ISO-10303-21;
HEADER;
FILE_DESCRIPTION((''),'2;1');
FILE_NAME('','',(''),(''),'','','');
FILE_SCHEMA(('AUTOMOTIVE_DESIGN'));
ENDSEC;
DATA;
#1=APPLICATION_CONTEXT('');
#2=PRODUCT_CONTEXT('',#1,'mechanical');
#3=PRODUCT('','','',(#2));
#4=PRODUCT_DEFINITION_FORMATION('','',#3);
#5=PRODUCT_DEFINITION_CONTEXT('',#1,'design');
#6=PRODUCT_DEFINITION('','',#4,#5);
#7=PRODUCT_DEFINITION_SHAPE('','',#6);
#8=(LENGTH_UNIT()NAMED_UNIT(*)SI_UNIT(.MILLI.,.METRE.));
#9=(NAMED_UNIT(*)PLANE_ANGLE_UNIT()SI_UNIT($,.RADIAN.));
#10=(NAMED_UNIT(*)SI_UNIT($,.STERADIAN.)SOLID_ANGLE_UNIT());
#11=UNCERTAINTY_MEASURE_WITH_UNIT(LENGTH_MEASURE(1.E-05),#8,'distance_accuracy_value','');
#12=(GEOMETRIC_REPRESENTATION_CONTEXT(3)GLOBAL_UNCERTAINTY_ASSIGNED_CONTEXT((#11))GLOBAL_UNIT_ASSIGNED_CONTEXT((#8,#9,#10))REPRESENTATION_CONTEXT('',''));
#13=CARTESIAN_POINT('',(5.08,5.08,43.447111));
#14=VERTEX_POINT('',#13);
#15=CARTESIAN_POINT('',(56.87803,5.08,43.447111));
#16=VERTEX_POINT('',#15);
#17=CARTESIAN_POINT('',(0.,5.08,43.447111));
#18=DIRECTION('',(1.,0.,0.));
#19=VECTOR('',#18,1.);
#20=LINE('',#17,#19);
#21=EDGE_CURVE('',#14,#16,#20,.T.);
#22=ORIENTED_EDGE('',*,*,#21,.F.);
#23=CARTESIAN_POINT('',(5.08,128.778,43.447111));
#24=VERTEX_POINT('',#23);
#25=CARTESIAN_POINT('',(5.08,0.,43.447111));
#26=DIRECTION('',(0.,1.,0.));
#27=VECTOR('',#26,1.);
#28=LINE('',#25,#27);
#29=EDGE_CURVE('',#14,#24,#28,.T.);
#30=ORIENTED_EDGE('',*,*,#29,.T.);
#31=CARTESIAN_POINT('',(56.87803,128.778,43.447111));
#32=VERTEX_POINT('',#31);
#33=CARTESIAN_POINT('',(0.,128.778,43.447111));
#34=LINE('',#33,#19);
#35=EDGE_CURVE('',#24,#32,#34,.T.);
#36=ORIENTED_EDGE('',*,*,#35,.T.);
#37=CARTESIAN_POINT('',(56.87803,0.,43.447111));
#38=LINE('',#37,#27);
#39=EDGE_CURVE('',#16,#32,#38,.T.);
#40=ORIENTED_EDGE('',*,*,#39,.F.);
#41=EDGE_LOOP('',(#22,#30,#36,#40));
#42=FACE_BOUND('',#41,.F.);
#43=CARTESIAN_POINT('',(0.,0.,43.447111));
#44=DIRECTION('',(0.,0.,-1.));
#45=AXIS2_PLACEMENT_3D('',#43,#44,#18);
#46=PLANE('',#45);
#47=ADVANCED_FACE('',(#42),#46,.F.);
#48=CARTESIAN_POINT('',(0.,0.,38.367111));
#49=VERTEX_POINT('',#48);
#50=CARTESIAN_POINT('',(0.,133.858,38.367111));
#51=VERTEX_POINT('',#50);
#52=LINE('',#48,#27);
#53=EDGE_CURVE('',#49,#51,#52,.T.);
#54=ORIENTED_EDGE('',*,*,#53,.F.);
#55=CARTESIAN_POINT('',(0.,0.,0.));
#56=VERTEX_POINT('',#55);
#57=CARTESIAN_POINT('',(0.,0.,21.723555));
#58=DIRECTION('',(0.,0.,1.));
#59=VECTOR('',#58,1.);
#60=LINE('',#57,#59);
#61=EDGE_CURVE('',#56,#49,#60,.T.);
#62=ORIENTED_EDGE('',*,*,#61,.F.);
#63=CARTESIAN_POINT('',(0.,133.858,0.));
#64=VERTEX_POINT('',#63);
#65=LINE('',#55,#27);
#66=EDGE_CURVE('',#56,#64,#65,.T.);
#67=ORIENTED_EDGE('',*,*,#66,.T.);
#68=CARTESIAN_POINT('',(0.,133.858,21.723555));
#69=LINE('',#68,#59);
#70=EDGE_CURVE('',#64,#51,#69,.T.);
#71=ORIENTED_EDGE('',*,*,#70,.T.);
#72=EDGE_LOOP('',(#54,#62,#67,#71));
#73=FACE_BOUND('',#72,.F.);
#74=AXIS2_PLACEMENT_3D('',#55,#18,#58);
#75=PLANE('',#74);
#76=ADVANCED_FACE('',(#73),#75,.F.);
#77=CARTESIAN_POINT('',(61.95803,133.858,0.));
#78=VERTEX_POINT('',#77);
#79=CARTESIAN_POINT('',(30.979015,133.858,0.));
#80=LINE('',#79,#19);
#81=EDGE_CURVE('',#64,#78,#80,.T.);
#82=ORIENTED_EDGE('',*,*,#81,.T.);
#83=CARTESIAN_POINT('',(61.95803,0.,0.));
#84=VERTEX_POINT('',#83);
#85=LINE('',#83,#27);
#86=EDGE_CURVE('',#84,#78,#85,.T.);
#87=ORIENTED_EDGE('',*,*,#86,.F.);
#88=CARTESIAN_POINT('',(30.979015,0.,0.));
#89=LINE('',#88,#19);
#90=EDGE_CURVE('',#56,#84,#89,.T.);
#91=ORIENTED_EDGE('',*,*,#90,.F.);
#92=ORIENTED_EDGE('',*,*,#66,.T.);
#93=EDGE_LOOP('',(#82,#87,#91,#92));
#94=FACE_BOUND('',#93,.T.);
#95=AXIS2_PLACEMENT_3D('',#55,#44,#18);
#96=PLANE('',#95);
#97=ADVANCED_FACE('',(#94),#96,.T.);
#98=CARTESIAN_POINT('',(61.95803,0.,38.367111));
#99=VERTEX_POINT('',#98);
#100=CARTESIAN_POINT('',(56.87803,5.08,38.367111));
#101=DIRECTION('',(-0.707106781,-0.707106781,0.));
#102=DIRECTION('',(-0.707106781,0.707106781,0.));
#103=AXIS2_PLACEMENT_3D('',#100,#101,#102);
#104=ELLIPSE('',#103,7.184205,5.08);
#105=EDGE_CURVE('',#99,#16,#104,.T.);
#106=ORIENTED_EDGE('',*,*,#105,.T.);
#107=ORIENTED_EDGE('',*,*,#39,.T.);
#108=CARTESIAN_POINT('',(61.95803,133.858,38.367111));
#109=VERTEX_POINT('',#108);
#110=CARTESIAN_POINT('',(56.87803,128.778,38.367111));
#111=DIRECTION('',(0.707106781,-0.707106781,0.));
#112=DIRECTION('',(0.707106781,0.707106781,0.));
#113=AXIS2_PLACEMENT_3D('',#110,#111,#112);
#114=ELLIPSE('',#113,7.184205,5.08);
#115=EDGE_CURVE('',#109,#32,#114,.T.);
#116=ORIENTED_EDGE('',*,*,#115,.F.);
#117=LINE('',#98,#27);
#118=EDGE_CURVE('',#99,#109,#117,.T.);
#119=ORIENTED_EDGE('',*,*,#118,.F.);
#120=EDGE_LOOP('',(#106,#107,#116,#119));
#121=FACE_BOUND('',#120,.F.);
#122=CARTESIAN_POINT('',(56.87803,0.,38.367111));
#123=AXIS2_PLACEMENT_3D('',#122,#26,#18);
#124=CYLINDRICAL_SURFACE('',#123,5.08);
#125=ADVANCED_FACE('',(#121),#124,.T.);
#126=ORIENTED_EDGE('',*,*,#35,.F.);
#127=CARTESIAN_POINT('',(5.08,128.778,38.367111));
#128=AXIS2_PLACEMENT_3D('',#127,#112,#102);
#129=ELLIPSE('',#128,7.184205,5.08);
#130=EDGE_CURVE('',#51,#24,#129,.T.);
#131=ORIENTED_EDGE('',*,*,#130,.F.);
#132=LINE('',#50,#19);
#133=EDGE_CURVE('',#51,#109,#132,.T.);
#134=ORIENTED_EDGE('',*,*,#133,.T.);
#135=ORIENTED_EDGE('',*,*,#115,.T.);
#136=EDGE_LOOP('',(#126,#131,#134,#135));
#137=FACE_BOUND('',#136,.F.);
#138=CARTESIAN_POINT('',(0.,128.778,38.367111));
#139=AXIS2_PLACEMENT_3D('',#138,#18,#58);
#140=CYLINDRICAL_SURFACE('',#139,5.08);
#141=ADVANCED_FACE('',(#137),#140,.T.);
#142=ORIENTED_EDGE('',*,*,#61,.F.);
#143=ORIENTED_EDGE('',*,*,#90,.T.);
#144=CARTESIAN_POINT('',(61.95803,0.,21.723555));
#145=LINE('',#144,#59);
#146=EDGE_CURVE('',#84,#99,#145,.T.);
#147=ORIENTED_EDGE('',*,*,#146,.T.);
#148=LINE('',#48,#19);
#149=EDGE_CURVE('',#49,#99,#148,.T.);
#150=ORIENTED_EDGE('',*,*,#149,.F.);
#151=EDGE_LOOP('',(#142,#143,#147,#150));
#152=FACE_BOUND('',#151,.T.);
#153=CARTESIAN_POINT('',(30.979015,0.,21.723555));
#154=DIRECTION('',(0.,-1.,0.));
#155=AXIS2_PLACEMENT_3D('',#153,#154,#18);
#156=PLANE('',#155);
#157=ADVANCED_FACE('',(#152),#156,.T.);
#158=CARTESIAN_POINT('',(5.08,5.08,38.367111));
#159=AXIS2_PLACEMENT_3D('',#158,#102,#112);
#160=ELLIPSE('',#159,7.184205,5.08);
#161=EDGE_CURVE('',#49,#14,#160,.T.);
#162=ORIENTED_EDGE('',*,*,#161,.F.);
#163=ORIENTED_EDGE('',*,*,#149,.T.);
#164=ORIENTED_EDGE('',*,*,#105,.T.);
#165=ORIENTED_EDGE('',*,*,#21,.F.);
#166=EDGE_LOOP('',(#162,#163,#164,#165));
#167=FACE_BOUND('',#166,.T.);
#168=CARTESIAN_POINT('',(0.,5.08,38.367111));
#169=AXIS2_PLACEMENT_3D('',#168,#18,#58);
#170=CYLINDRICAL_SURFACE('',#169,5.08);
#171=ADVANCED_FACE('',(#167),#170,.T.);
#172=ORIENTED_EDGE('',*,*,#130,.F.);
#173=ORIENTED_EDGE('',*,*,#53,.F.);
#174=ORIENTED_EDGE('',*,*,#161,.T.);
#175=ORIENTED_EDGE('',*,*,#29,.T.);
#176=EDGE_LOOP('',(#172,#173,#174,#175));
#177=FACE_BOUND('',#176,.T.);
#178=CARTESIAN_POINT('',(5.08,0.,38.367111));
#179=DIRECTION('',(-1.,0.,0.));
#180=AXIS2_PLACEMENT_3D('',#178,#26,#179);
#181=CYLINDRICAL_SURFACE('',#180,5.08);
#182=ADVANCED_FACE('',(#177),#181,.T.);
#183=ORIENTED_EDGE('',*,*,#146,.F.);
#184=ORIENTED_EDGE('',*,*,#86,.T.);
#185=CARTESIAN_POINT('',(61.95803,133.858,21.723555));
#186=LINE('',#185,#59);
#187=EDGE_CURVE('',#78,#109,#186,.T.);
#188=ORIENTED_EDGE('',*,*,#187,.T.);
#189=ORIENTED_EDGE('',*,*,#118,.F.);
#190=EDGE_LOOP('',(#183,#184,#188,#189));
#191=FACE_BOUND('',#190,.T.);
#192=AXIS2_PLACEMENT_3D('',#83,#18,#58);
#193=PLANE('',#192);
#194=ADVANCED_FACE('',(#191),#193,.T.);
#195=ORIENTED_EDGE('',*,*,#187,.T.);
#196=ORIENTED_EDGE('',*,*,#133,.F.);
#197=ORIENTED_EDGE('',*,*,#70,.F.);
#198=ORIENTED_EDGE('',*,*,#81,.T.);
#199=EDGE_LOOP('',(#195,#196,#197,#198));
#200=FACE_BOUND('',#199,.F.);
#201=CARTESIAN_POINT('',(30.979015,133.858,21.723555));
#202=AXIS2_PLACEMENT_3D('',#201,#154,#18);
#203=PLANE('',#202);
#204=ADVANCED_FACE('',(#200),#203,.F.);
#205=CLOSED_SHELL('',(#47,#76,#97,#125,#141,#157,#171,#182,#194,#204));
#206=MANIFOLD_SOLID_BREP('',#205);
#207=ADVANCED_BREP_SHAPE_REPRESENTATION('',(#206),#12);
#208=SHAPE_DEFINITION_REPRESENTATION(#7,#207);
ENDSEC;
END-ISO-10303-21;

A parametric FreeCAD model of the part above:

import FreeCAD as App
import Part
import Sketcher
Q = App.Units.Quantity


def edges_at(feature, points):
    """Names of the edges that pass closest to the given points."""
    edges = feature.Shape.Edges
    near = lambda p: min(range(len(edges)), key=lambda i: edges[i].distToShape(Part.Vertex(*p))[0])
    return sorted({f"Edge{near(p) + 1}" for p in points})

doc = App.newDocument("Part")
body = doc.addObject("PartDesign::Body", "Body")

# Sketch on XZ plane
sketch1 = doc.addObject("Sketcher::SketchObject", "Sketch")
body.addObject(sketch1)
sketch1.AttachmentSupport = (doc.XZ_Plane, [""])
sketch1.MapMode = "FlatFace"
sketch1.addGeometry([
    Part.LineSegment(App.Vector(0, 43, 0), App.Vector(0, 0, 0)),
    Part.LineSegment(App.Vector(0, 0, 0), App.Vector(62, 0, 0)),
    Part.LineSegment(App.Vector(62, 0, 0), App.Vector(62, 43, 0)),
    Part.LineSegment(App.Vector(62, 43, 0), App.Vector(0, 43, 0)),
], False)
sketch1.addConstraint([
    Sketcher.Constraint("Coincident", 0, 2, 1, 1),
    Sketcher.Constraint("Coincident", 1, 2, 2, 1),
    Sketcher.Constraint("Coincident", 2, 2, 3, 1),
    Sketcher.Constraint("Coincident", 3, 2, 0, 1),
    Sketcher.Constraint("Vertical", 0),
    Sketcher.Constraint("Horizontal", 1),
    Sketcher.Constraint("Vertical", 2),
    Sketcher.Constraint("Horizontal", 3),
    Sketcher.Constraint("Coincident", 0, 2, -1, 1),
    Sketcher.Constraint("DistanceX", 1, 1, 1, 2, 61.95803),
    Sketcher.Constraint("DistanceY", 0, 2, 0, 1, 43.447111),
])
pad1 = doc.addObject("PartDesign::Pad", "Pad")
body.addObject(pad1)
pad1.Profile = sketch1
pad1.Length = Q("5.27 in")
pad1.Reversed = True
doc.recompute()

fillet = doc.addObject("PartDesign::Fillet", "Fillet")
body.addObject(fillet)
fillet.Base = (pad1, edges_at(pad1, [
    (61.958, 66.929, 43.447),
    (0, 66.929, 43.447),
    (30.979, 0, 43.447),
    (30.979, 133.858, 43.447),
]))
fillet.Radius = Q("0.2 in")

doc.recompute()
